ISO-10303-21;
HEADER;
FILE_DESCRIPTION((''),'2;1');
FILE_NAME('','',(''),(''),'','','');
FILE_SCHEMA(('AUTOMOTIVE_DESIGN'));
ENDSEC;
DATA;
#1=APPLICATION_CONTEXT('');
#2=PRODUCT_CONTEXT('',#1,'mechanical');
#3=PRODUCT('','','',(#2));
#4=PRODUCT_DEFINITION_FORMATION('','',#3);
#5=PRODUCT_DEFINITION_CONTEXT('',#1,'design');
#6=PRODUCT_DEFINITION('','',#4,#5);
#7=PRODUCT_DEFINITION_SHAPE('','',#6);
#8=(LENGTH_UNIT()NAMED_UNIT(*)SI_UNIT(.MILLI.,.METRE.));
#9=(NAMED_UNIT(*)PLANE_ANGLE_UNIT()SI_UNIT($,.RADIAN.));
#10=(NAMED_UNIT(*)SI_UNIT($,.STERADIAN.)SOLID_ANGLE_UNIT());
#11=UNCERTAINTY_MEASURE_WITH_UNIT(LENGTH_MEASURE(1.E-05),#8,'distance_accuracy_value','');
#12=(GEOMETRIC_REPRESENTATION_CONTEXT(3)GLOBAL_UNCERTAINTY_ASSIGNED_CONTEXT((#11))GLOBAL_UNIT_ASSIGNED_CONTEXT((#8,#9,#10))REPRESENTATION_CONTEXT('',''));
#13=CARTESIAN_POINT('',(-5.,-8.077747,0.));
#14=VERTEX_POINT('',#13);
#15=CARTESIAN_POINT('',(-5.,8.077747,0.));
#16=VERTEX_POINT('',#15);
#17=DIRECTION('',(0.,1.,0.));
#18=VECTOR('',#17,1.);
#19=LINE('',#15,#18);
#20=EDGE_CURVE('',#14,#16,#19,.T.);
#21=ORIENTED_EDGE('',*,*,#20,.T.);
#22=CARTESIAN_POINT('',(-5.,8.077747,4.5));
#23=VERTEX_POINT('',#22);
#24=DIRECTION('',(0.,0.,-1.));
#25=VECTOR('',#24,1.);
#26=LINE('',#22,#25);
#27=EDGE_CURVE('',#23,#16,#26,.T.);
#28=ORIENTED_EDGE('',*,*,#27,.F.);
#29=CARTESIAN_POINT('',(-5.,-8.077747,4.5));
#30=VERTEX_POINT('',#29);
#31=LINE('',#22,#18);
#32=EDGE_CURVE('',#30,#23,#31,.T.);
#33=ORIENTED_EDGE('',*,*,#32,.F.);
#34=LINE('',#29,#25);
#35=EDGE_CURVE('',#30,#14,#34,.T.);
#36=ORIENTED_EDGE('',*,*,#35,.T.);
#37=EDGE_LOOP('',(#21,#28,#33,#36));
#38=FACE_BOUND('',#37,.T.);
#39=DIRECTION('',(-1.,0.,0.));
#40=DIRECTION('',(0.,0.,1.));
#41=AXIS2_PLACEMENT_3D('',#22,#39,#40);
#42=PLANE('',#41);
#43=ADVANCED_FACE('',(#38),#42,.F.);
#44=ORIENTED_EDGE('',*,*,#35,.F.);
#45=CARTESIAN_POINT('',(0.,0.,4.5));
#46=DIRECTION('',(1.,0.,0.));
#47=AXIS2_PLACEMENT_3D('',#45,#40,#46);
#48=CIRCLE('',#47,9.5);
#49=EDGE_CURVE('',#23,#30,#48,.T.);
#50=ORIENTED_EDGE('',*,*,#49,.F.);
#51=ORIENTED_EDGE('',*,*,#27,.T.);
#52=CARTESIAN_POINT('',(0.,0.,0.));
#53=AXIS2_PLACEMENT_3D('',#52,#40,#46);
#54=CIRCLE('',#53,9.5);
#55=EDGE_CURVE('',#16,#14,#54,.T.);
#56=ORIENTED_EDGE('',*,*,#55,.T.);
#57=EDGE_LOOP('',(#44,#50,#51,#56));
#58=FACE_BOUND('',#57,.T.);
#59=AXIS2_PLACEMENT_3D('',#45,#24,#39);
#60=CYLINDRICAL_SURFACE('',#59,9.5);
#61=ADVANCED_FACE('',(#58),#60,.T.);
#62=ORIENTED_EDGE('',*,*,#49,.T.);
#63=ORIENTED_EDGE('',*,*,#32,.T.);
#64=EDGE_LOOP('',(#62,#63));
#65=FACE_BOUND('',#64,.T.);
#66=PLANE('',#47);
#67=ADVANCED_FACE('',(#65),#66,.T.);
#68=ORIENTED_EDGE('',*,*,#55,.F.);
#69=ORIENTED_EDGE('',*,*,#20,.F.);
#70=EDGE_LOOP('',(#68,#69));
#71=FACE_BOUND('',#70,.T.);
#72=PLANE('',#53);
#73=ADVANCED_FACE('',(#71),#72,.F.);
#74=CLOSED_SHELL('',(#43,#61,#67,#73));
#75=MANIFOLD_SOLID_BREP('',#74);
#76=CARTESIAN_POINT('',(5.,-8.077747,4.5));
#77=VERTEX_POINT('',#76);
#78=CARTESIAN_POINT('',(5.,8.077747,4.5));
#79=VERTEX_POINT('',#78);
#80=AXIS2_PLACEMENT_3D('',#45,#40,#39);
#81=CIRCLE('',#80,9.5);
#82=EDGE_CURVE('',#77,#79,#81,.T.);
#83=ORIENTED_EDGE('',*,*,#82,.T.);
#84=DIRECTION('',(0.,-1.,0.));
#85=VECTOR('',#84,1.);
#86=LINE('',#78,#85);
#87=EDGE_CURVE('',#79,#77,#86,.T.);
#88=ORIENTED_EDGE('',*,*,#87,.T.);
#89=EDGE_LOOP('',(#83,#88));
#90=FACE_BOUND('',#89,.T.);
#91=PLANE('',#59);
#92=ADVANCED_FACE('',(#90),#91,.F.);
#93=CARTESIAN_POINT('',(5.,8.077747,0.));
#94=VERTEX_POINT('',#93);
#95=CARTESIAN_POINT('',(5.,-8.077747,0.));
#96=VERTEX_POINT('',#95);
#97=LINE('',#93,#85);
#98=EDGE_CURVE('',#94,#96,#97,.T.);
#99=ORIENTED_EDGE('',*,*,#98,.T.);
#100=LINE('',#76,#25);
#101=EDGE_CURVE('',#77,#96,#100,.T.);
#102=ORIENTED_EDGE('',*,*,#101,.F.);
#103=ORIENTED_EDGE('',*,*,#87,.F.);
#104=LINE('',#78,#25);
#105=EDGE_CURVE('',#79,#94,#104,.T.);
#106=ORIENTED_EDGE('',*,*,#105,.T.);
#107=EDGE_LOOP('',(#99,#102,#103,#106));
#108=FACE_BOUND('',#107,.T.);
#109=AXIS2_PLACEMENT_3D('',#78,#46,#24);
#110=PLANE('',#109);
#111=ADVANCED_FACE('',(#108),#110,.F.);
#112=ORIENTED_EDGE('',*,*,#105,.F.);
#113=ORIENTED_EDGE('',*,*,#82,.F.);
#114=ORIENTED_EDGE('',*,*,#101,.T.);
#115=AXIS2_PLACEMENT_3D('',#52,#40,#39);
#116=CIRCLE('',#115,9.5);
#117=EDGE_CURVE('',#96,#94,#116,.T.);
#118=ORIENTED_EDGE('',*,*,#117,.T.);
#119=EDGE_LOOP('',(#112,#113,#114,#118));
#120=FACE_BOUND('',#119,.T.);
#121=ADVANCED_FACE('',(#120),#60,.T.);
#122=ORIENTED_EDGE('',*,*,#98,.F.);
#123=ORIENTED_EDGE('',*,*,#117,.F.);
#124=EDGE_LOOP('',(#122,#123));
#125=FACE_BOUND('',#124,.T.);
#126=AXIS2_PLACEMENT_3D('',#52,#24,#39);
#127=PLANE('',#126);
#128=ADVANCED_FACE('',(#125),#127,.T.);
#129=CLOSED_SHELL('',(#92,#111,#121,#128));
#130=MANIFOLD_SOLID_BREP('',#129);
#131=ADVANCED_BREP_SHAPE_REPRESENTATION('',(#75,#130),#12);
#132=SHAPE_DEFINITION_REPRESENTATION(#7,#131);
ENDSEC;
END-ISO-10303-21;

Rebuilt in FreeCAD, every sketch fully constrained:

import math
import FreeCAD as App
import Part
import Sketcher
Q = App.Units.Quantity

doc = App.newDocument("Part")
body = doc.addObject("PartDesign::Body", "Body")

# Sketch on XY plane
sketch1 = body.newObject("Sketcher::SketchObject", "Sketch")
sketch1.AttachmentSupport = (doc.getObject("XY_Plane"), [""])
sketch1.MapMode = "FlatFace"
sketch1.addGeometry([
    Part.LineSegment(App.Vector(-5, -8, 0), App.Vector(-5, 8, 0)),
    Part.ArcOfCircle(Part.Circle(App.Vector(0, 0, 0), App.Vector(0, 0, 1), 10), math.radians(122), math.radians(238)),
], False)
sketch1.addConstraint([
    Sketcher.Constraint("Coincident", 0, 1, 1, 2),
    Sketcher.Constraint("Coincident", 1, 1, 0, 2),
    Sketcher.Constraint("Vertical", 0),
    Sketcher.Constraint("Coincident", 1, 3, -1, 1),
    Sketcher.Constraint("Radius", 1, Q("9.5 mm")),
    Sketcher.Constraint("DistanceX", 0, 1, -1, 1, Q("5 mm")),
])
pad1 = body.newObject("PartDesign::Pad", "Pad")
pad1.Profile = sketch1
pad1.Length = 4.5
body2 = doc.addObject("PartDesign::Body", "Body001")

# Sketch on XY plane
sketch2 = body2.newObject("Sketcher::SketchObject", "Sketch001")
sketch2.AttachmentSupport = (doc.getObject("XY_Plane001"), [""])
sketch2.MapMode = "FlatFace"
sketch2.addGeometry([
    Part.LineSegment(App.Vector(5, 8, 0), App.Vector(5, -8, 0)),
    Part.ArcOfCircle(Part.Circle(App.Vector(0, 0, 0), App.Vector(0, 0, 1), 10), math.radians(-58), math.radians(58)),
], False)
sketch2.addConstraint([
    Sketcher.Constraint("Coincident", 0, 1, 1, 2),
    Sketcher.Constraint("Coincident", 1, 1, 0, 2),
    Sketcher.Constraint("Vertical", 0),
    Sketcher.Constraint("Coincident", 1, 3, -1, 1),
    Sketcher.Constraint("Radius", 1, Q("9.5 mm")),
    Sketcher.Constraint("DistanceX", -1, 1, 0, 1, Q("5 mm")),
])
pad2 = body2.newObject("PartDesign::Pad", "Pad001")
pad2.Profile = sketch2
pad2.Length = 4.5

doc.recompute()
